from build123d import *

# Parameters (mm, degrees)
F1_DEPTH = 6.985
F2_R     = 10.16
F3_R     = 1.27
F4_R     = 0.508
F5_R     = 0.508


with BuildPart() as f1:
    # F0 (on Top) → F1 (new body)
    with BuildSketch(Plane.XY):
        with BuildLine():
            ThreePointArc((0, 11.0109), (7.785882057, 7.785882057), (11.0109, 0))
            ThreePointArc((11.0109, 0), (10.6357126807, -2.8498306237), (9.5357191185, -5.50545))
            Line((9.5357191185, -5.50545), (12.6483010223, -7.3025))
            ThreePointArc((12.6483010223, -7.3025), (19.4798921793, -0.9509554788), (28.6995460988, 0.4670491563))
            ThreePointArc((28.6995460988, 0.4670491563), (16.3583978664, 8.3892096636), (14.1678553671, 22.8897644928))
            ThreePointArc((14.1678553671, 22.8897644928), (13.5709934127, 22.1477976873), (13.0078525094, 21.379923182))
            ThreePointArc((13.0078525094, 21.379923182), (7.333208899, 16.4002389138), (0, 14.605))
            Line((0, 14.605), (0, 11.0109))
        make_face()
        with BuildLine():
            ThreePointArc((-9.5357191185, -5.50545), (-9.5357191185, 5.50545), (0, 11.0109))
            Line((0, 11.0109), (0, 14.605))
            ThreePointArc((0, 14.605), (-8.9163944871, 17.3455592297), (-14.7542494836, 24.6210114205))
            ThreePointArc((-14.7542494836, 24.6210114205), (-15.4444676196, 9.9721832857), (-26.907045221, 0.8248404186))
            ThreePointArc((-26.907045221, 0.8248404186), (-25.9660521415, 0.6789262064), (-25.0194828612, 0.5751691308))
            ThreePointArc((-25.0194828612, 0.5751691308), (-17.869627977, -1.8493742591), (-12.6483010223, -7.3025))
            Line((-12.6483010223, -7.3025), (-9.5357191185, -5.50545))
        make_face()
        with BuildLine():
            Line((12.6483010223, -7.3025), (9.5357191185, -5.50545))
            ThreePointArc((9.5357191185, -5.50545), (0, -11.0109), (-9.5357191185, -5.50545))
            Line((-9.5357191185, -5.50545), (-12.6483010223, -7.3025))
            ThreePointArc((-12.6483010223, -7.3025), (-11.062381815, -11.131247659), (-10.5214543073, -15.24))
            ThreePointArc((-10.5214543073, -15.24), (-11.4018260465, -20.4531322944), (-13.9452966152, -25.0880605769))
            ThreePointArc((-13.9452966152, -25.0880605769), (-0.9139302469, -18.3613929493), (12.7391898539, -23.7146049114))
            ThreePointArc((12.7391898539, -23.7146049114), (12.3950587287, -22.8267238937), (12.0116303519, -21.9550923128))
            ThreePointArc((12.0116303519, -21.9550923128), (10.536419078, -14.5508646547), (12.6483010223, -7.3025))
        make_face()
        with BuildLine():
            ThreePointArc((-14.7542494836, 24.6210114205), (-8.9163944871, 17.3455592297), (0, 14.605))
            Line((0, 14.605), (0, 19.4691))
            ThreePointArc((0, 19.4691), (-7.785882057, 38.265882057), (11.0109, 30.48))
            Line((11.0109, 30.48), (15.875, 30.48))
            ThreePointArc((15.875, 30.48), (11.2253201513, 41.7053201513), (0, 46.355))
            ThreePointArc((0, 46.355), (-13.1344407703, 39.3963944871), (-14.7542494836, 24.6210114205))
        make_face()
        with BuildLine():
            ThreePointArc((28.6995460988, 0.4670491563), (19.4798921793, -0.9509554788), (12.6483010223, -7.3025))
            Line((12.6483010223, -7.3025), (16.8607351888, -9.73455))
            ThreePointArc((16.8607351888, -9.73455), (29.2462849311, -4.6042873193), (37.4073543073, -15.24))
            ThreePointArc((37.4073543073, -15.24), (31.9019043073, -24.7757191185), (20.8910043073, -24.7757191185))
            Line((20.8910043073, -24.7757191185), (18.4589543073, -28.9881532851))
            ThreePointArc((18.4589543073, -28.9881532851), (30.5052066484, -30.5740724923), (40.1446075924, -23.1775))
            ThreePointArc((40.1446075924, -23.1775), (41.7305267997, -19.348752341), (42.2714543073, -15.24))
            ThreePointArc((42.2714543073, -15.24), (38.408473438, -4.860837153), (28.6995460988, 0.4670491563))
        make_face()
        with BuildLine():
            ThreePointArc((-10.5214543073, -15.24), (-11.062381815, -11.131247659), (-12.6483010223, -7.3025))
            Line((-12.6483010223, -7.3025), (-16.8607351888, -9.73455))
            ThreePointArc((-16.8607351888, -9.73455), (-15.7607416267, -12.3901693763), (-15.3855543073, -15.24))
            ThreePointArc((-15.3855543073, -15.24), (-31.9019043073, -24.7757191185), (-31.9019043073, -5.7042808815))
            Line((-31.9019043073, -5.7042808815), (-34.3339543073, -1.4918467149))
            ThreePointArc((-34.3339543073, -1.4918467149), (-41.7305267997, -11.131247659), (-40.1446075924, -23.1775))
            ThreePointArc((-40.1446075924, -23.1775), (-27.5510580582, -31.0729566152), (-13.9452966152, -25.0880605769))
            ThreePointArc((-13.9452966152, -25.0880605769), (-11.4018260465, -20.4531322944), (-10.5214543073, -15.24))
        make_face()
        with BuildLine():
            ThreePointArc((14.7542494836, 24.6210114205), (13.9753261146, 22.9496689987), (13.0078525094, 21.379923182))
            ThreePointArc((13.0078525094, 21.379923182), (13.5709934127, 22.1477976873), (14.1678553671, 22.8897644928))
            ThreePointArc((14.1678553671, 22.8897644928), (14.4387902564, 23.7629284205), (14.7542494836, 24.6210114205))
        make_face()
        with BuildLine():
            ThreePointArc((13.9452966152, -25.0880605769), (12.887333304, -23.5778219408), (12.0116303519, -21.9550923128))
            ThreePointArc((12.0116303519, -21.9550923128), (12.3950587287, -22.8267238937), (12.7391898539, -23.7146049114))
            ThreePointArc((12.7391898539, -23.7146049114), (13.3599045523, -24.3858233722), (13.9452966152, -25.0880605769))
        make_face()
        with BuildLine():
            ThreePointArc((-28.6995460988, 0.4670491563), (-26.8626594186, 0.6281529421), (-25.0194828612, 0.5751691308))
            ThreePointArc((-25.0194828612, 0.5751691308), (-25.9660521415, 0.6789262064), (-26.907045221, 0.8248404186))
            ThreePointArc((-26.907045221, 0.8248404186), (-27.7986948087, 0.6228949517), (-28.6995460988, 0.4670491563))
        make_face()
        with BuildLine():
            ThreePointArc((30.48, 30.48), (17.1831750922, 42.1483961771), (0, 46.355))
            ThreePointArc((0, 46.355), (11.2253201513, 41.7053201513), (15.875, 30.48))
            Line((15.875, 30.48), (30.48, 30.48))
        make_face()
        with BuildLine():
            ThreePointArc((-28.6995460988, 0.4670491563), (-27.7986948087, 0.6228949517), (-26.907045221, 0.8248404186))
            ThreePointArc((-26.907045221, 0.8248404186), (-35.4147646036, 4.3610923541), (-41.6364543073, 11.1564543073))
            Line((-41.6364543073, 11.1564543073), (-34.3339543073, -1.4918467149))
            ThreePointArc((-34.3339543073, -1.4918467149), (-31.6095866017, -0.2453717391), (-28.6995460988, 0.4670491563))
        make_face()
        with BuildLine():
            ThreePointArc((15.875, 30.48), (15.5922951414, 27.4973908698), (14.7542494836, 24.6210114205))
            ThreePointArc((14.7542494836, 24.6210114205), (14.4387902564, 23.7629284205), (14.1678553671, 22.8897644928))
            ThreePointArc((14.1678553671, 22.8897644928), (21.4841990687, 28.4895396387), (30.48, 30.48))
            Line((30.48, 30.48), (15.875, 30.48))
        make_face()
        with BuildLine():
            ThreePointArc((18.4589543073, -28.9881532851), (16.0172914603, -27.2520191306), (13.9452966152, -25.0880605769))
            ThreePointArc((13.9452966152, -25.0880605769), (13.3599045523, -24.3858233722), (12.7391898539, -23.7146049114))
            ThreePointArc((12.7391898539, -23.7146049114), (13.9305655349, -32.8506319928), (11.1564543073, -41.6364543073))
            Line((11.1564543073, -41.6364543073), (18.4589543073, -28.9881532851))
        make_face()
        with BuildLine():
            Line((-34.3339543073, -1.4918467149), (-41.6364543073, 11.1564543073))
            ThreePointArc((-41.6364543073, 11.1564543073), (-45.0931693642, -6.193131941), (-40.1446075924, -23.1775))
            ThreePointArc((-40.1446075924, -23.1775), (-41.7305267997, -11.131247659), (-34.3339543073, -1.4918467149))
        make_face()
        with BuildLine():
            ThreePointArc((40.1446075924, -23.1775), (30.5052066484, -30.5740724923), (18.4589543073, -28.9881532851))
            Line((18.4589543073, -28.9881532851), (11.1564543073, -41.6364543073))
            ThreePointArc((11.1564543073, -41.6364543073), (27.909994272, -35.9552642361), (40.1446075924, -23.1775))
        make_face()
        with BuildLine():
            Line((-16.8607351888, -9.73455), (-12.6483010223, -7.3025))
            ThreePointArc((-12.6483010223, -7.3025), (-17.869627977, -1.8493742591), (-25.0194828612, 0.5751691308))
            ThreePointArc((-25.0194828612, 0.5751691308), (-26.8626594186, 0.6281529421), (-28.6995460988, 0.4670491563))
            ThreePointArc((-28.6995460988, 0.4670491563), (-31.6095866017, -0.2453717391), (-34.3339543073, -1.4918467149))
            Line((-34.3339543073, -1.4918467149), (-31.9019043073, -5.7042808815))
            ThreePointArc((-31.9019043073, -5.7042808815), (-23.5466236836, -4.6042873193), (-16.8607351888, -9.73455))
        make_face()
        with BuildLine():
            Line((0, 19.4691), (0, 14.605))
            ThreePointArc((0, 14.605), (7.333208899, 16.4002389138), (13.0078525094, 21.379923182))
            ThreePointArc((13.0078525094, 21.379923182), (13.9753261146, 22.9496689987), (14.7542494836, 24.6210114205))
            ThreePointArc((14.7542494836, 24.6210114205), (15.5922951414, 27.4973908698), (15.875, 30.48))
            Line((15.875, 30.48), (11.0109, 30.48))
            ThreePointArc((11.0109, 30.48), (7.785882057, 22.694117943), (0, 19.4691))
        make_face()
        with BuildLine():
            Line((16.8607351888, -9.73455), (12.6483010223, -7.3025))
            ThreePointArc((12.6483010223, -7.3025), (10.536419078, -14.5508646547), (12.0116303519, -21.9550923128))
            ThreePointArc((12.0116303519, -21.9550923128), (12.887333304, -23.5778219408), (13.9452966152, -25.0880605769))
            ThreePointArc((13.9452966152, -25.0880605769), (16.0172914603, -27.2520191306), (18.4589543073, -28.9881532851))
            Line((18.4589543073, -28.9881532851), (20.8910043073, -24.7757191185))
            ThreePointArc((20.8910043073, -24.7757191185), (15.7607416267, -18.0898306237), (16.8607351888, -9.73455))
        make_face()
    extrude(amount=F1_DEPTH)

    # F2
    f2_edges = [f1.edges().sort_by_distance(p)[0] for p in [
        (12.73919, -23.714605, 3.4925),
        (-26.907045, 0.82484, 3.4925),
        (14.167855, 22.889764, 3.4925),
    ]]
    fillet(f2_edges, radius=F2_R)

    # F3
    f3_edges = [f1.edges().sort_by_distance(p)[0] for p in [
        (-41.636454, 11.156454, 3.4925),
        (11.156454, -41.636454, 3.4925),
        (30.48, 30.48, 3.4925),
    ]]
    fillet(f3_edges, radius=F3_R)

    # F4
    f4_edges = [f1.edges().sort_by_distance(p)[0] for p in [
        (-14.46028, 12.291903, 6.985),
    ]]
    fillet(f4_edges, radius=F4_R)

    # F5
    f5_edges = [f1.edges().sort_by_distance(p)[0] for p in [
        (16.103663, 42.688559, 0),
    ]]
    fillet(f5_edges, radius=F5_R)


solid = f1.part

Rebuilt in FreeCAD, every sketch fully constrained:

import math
import FreeCAD as App
import Part
import Sketcher

V = App.Vector
Q = App.Units.Quantity


def edges_at(feature, points):
    """Names of the edges that pass closest to the given points."""
    edges = feature.Shape.Edges
    near = lambda p: min(range(len(edges)), key=lambda i: edges[i].distToShape(Part.Vertex(*p))[0])
    return sorted({f"Edge{near(p) + 1}" for p in points})

doc = App.newDocument("Part")
body = doc.addObject("PartDesign::Body", "Body")

sketch1 = doc.addObject("Sketcher::SketchObject", "Sketch")
body.addObject(sketch1)
sketch1.AttachmentSupport = (doc.XY_Plane, [""])
sketch1.MapMode = "FlatFace"
sketch1.addGeometry(Part.ArcOfCircle(Part.Circle(V(-7, -31, 0), V(0, 0, 1), 21), math.radians(-30), math.radians(20)), False)
sketch1.addGeometry(Part.ArcOfCircle(Part.Circle(V(8, -5, 0), V(0, 0, 1), 37), math.radians(-85), math.radians(-30)), False)
sketch1.addGeometry(Part.ArcOfCircle(Part.Circle(V(26, -15, 0), V(0, 0, 1), 16), math.radians(-30), math.radians(0)), False)
sketch1.addGeometry(Part.ArcOfCircle(Part.Circle(V(26, -15, 0), V(0, 0, 1), 16), math.radians(0), math.radians(82)), False)
sketch1.addGeometry(Part.ArcOfCircle(Part.Circle(V(31, 18, 0), V(0, 0, 1), 18), math.radians(164), math.radians(262)), False)
sketch1.addGeometry(Part.ArcOfCircle(Part.Circle(V(30, 9, 0), V(0, 0, 1), 21), math.radians(90), math.radians(140)), False)
sketch1.addGeometry(Part.ArcOfCircle(Part.Circle(V(0, 9, 0), V(0, 0, 1), 37), math.radians(35), math.radians(90)), False)
sketch1.addGeometry(Part.ArcOfCircle(Part.Circle(V(0, 30, 0), V(0, 0, 1), 16), math.radians(90), math.radians(202)), False)
sketch1.addGeometry(Part.ArcOfCircle(Part.Circle(V(-31, 18, 0), V(0, 0, 1), 18), math.radians(-76), math.radians(22)), False)
sketch1.addGeometry(Part.ArcOfCircle(Part.Circle(V(-23, 22, 0), V(0, 0, 1), 21), math.radians(-150), math.radians(-100)), False)
sketch1.addGeometry(Part.ArcOfCircle(Part.Circle(V(-8, -5, 0), V(0, 0, 1), 37), math.radians(155), math.radians(210)), False)
sketch1.addGeometry(Part.ArcOfCircle(Part.Circle(V(-26, -15, 0), V(0, 0, 1), 16), math.radians(-150), math.radians(-38)), False)
sketch1.addGeometry(Part.ArcOfCircle(Part.Circle(V(0, -36, 0), V(0, 0, 1), 18), math.radians(44), math.radians(142)), False)
sketch1.addGeometry(Part.ArcOfCircle(Part.Circle(V(-26, -15, 0), V(0, 0, 1), 11), math.radians(0), math.radians(30)), False)
sketch1.addGeometry(Part.ArcOfCircle(Part.Circle(V(-26, -15, 0), V(0, 0, 1), 11), math.radians(120), math.radians(360)), False)
sketch1.addGeometry(Part.ArcOfCircle(Part.Circle(V(-26, -15, 0), V(0, 0, 1), 11), math.radians(30), math.radians(120)), False)
sketch1.addGeometry(Part.ArcOfCircle(Part.Circle(V(0, 0, 0), V(0, 0, 1), 11), math.radians(0), math.radians(90)), False)
sketch1.addGeometry(Part.ArcOfCircle(Part.Circle(V(0, 0, 0), V(0, 0, 1), 11), math.radians(-30), math.radians(0)), False)
sketch1.addGeometry(Part.ArcOfCircle(Part.Circle(V(0, 0, 0), V(0, 0, 1), 11), math.radians(-150), math.radians(-30)), False)
sketch1.addGeometry(Part.ArcOfCircle(Part.Circle(V(0, 0, 0), V(0, 0, 1), 11), math.radians(90), math.radians(210)), False)
sketch1.addGeometry(Part.ArcOfCircle(Part.Circle(V(26, -15, 0), V(0, 0, 1), 11), math.radians(0), math.radians(150)), False)
sketch1.addGeometry(Part.ArcOfCircle(Part.Circle(V(26, -15, 0), V(0, 0, 1), 11), math.radians(-120), math.radians(0)), False)
sketch1.addGeometry(Part.ArcOfCircle(Part.Circle(V(26, -15, 0), V(0, 0, 1), 11), math.radians(150), math.radians(240)), False)
sketch1.addGeometry(Part.ArcOfCircle(Part.Circle(V(0, 30, 0), V(0, 0, 1), 11), math.radians(0), math.radians(270)), False)
sketch1.addGeometry(Part.ArcOfCircle(Part.Circle(V(0, 30, 0), V(0, 0, 1), 11), math.radians(-90), math.radians(0)), False)
sketch1.addConstraint(Sketcher.Constraint("Coincident", 0, 1, 1, 1))
sketch1.addConstraint(Sketcher.Constraint("Tangent", 1, 2, 2, 1))
sketch1.addConstraint(Sketcher.Constraint("Tangent", 2, 2, 3, 1))
sketch1.addConstraint(Sketcher.Constraint("Tangent", 3, 2, 4, 2))
sketch1.addConstraint(Sketcher.Constraint("Coincident", 4, 1, 5, 2))
sketch1.addConstraint(Sketcher.Constraint("Coincident", 5, 1, 6, 1))
sketch1.addConstraint(Sketcher.Constraint("Tangent", 6, 2, 7, 1))
sketch1.addConstraint(Sketcher.Constraint("Tangent", 7, 2, 8, 2))
sketch1.addConstraint(Sketcher.Constraint("Coincident", 8, 1, 9, 2))
sketch1.addConstraint(Sketcher.Constraint("Coincident", 9, 1, 10, 1))
sketch1.addConstraint(Sketcher.Constraint("Tangent", 10, 2, 11, 1))
sketch1.addConstraint(Sketcher.Constraint("Tangent", 11, 2, 12, 2))
sketch1.addConstraint(Sketcher.Constraint("Coincident", 12, 1, 0, 2))
sketch1.addConstraint(Sketcher.Constraint("Tangent", 13, 1, 14, 2))
sketch1.addConstraint(Sketcher.Constraint("Tangent", 14, 1, 15, 2))
sketch1.addConstraint(Sketcher.Constraint("Tangent", 15, 1, 13, 2))
sketch1.addConstraint(Sketcher.Constraint("Tangent", 16, 1, 17, 2))
sketch1.addConstraint(Sketcher.Constraint("Tangent", 17, 1, 18, 2))
sketch1.addConstraint(Sketcher.Constraint("Tangent", 18, 1, 19, 2))
sketch1.addConstraint(Sketcher.Constraint("Tangent", 19, 1, 16, 2))
sketch1.addConstraint(Sketcher.Constraint("Tangent", 20, 1, 21, 2))
sketch1.addConstraint(Sketcher.Constraint("Tangent", 21, 1, 22, 2))
sketch1.addConstraint(Sketcher.Constraint("Tangent", 22, 1, 20, 2))
sketch1.addConstraint(Sketcher.Constraint("Tangent", 23, 1, 24, 2))
sketch1.addConstraint(Sketcher.Constraint("Coincident", 24, 1, 23, 2))
sketch1.addConstraint(Sketcher.Constraint("Coincident", 16, 3, -1, 1))
sketch1.addConstraint(Sketcher.Constraint("Coincident", 13, 3, 11, 3))
sketch1.addConstraint(Sketcher.Constraint("Coincident", 20, 3, 2, 3))
sketch1.addConstraint(Sketcher.Constraint("Coincident", 23, 3, 7, 3))
sketch1.addConstraint(Sketcher.Constraint("Equal", 2, 3))
sketch1.addConstraint(Sketcher.Constraint("Equal", 0, 5))
sketch1.addConstraint(Sketcher.Constraint("Equal", 1, 6))
sketch1.addConstraint(Sketcher.Constraint("Equal", 3, 7))
sketch1.addConstraint(Sketcher.Constraint("Equal", 4, 8))
sketch1.addConstraint(Sketcher.Constraint("Equal", 5, 9))
sketch1.addConstraint(Sketcher.Constraint("Equal", 6, 10))
sketch1.addConstraint(Sketcher.Constraint("Equal", 7, 11))
sketch1.addConstraint(Sketcher.Constraint("Equal", 8, 12))
sketch1.addConstraint(Sketcher.Constraint("Equal", 15, 16))
sketch1.addConstraint(Sketcher.Constraint("Equal", 16, 17))
sketch1.addConstraint(Sketcher.Constraint("Equal", 19, 20))
sketch1.addConstraint(Sketcher.Constraint("Equal", 22, 23))
sketch1.addConstraint(Sketcher.Constraint("Symmetric", 4, 3, 8, 3, -2))
sketch1.addConstraint(Sketcher.Constraint("Symmetric", 1, 3, 10, 3, -2))
sketch1.addConstraint(Sketcher.Constraint("PointOnObject", 6, 3, -2))
sketch1.addConstraint(Sketcher.Constraint("PointOnObject", 7, 3, -2))
sketch1.addConstraint(Sketcher.Constraint("PointOnObject", 12, 3, -2))
sketch1.addConstraint(Sketcher.Constraint("PointOnObject", 16, 1, -1))
sketch1.addConstraint(Sketcher.Constraint("PointOnObject", 19, 1, -2))
sketch1.addConstraint(Sketcher.Constraint("PointOnObject", 24, 1, -2))
sketch1.addConstraint(Sketcher.Constraint("Horizontal", 5, 3, 6, 3))
sketch1.addConstraint(Sketcher.Constraint("Horizontal", 3, 3, 11, 3))
sketch1.addConstraint(Sketcher.Constraint("Horizontal", 22, 3, 2, 2))
sketch1.addConstraint(Sketcher.Constraint("Horizontal", 24, 3, 5, 1))
sketch1.addConstraint(Sketcher.Constraint("Horizontal", 2, 2, 13, 1))
sketch1.addConstraint(Sketcher.Constraint("Horizontal", 17, 1, 18, 1))
sketch1.addConstraint(Sketcher.Constraint("Horizontal", 13, 1, 20, 1))
sketch1.addConstraint(Sketcher.Constraint("Horizontal", 15, 1, 22, 1))
sketch1.addConstraint(Sketcher.Constraint("Horizontal", 5, 1, 23, 1))
sketch1.addConstraint(Sketcher.Constraint("Radius", 4, Q("0.7 in")))
sketch1.addConstraint(Sketcher.Constraint("Radius", 2, Q("0.625 in")))
sketch1.addConstraint(Sketcher.Constraint("DistanceY", 2, 3, -1, 1, Q("0.6 in")))
sketch1.addConstraint(Sketcher.Constraint("DistanceX", -1, 1, 5, 3, Q("1.2 in")))
sketch1.addConstraint(Sketcher.Constraint("DistanceY", -1, 1, 7, 3, Q("1.2 in")))
sketch1.addConstraint(Sketcher.Constraint("DistanceX", -1, 1, 5, 1, Q("1.2 in")))
sketch1.addConstraint(Sketcher.Constraint("Radius", 13, Q("0.4335 in")))
sketch1.addConstraint(Sketcher.Constraint("DistanceX", 0, 3, 1, 3, Q("0.6 in")))
sketch1.addConstraint(Sketcher.Constraint("DistanceX", 9, 3, 10, 3, Q("0.6 in")))
sketch1.addConstraint(Sketcher.Constraint("DistanceX", 0, 1, 3, 3, Q("0.6 in")))
sketch1.addConstraint(Sketcher.Constraint("DistanceX", 9, 1, 13, 3, Q("0.6 in")))
sketch1.addConstraint(Sketcher.Constraint("DistanceY", 1, 2, 2, 3, Q("0.3125 in")))
sketch1.addConstraint(Sketcher.Constraint("DistanceY", 15, 1, 10, 3, Q("0.203 in")))
sketch1.addConstraint(Sketcher.Constraint("DistanceY", 17, 1, 1, 3, Q("0.0365 in")))
sketch1.addConstraint(Sketcher.Constraint("DistanceX", -1, 1, 4, 3, 31.279009))
sketch1.addConstraint(Sketcher.Constraint("DistanceY", 14, 1, -1, 1, 5.704281))
sketch1.addConstraint(Sketcher.Constraint("DistanceY", 21, 1, -1, 1, 24.775719))
pad1 = doc.addObject("PartDesign::Pad", "Pad")
body.addObject(pad1)
pad1.Profile = sketch1
pad1.Length = Q("0.275 in")
doc.recompute()

fillet = doc.addObject("PartDesign::Fillet", "Fillet")
body.addObject(fillet)
fillet.Base = (pad1, edges_at(pad1, [(12.739, -23.715, 3.493), (-26.907, 0.825, 3.493), (14.168, 22.89, 3.493)]))
fillet.Radius = Q("0.4 in")
doc.recompute()

fillet2 = doc.addObject("PartDesign::Fillet", "Fillet001")
body.addObject(fillet2)
fillet2.Base = (fillet, edges_at(fillet, [(-41.636, 11.156, 3.493), (11.156, -41.636, 3.493), (30.48, 30.48, 3.493)]))
fillet2.Radius = Q("0.05 in")
doc.recompute()

fillet3 = doc.addObject("PartDesign::Fillet", "Fillet002")
body.addObject(fillet3)
fillet3.Base = (fillet2, edges_at(fillet2, [(-14.46, 12.292, 6.985)]))
fillet3.Radius = Q("0.02 in")
doc.recompute()

fillet4 = doc.addObject("PartDesign::Fillet", "Fillet003")
body.addObject(fillet4)
fillet4.Base = (fillet3, edges_at(fillet3, [(16.104, 42.689, 0)]))
fillet4.Radius = Q("0.02 in")

doc.recompute()
